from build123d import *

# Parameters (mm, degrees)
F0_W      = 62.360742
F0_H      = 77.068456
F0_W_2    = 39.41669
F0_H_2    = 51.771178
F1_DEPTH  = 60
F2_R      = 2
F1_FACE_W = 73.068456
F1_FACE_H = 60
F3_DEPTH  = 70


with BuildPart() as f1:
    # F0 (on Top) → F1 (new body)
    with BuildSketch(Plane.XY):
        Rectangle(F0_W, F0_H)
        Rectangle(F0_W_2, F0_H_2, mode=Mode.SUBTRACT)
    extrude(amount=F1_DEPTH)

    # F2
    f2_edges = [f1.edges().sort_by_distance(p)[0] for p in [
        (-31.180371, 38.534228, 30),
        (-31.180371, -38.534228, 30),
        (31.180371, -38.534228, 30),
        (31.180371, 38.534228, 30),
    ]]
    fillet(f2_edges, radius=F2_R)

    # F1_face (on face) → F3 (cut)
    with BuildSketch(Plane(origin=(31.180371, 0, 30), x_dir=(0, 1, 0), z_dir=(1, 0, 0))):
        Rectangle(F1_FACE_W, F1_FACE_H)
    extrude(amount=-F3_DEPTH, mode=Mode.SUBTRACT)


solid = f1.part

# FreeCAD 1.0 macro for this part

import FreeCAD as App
import Part
import Sketcher

V = App.Vector


def edges_at(feature, points):
    """Names of the edges that pass closest to the given points."""
    edges = feature.Shape.Edges
    near = lambda p: min(range(len(edges)), key=lambda i: edges[i].distToShape(Part.Vertex(*p))[0])
    return sorted({f"Edge{near(p) + 1}" for p in points})

doc = App.newDocument("Part")
body = doc.addObject("PartDesign::Body", "Body")
body.AllowCompound = True

# Sketch on XY plane
sketch1 = body.newObject("Sketcher::SketchObject", "Sketch")
sketch1.AttachmentSupport = (doc.getObject("XY_Plane"), [""])
sketch1.MapMode = "FlatFace"
sketch1.addGeometry([
    Part.LineSegment(V(-31, 39, 0), V(-31, -39, 0)),  # 0
    Part.LineSegment(V(-31, -39, 0), V(31, -39, 0)),  # 1
    Part.LineSegment(V(31, -39, 0), V(31, 39, 0)),  # 2
    Part.LineSegment(V(31, 39, 0), V(-31, 39, 0)),  # 3
    Part.LineSegment(V(20, -26, 0), V(-20, -26, 0)),  # 4
    Part.LineSegment(V(-20, -26, 0), V(-20, 26, 0)),  # 5
    Part.LineSegment(V(-20, 26, 0), V(20, 26, 0)),  # 6
    Part.LineSegment(V(20, 26, 0), V(20, -26, 0)),  # 7
], False)
sketch1.addConstraint([
    Sketcher.Constraint("Coincident", 0, 2, 1, 1),
    Sketcher.Constraint("Coincident", 1, 2, 2, 1),
    Sketcher.Constraint("Coincident", 2, 2, 3, 1),
    Sketcher.Constraint("Coincident", 3, 2, 0, 1),
    Sketcher.Constraint("Coincident", 4, 2, 5, 1),
    Sketcher.Constraint("Coincident", 5, 2, 6, 1),
    Sketcher.Constraint("Coincident", 6, 2, 7, 1),
    Sketcher.Constraint("Coincident", 7, 2, 4, 1),
    Sketcher.Constraint("Vertical", 0),
    Sketcher.Constraint("Horizontal", 1),
    Sketcher.Constraint("Vertical", 2),
    Sketcher.Constraint("Horizontal", 3),
    Sketcher.Constraint("Horizontal", 4),
    Sketcher.Constraint("Vertical", 5),
    Sketcher.Constraint("Horizontal", 6),
    Sketcher.Constraint("Vertical", 7),
    Sketcher.Constraint("Symmetric", 0, 2, 2, 2, -1, 1),
    Sketcher.Constraint("Symmetric", 4, 2, 6, 2, -1, 1),
    Sketcher.Constraint("DistanceX", 4, 2, 4, 1, 39.41669),
    Sketcher.Constraint("DistanceX", 1, 1, 1, 2, 62.360742),
    Sketcher.Constraint("DistanceY", 0, 2, 0, 1, 77.068456),
    Sketcher.Constraint("DistanceY", 5, 1, 5, 2, 51.771178),
])
pad1 = body.newObject("PartDesign::Pad", "Pad")
pad1.Profile = sketch1
pad1.Length = 60
doc.recompute()

fillet = body.newObject("PartDesign::Fillet", "Fillet")
fillet.Base = (pad1, edges_at(pad1, [
    (-31.18, 38.534, 30),
    (-31.18, -38.534, 30),
    (31.18, -38.534, 30),
    (31.18, 38.534, 30),
]))
fillet.Radius = 2

# Sketch on YZ plane
sketch2 = body.newObject("Sketcher::SketchObject", "Sketch001")
sketch2.AttachmentSupport = (doc.getObject("YZ_Plane"), [""])
sketch2.MapMode = "FlatFace"
sketch2.AttachmentOffset = App.Placement(V(0, 0, 31.180371), App.Rotation())
sketch2.addGeometry([
    Part.LineSegment(V(-37, 60, 0), V(-37, 0, 0)),
    Part.LineSegment(V(-37, 0, 0), V(37, 0, 0)),
    Part.LineSegment(V(37, 0, 0), V(37, 60, 0)),
    Part.LineSegment(V(37, 60, 0), V(-37, 60, 0)),
], False)
sketch2.addConstraint([
    Sketcher.Constraint("Coincident", 0, 2, 1, 1),
    Sketcher.Constraint("Coincident", 1, 2, 2, 1),
    Sketcher.Constraint("Coincident", 2, 2, 3, 1),
    Sketcher.Constraint("Coincident", 3, 2, 0, 1),
    Sketcher.Constraint("Vertical", 0),
    Sketcher.Constraint("Horizontal", 1),
    Sketcher.Constraint("Vertical", 2),
    Sketcher.Constraint("Horizontal", 3),
    Sketcher.Constraint("Symmetric", 0, 2, 1, 2, -1, 1),
    Sketcher.Constraint("DistanceY", 0, 2, 0, 1, 60.0),
    Sketcher.Constraint("DistanceX", 1, 1, 1, 2, 73.068456),
])
pocket1 = body.newObject("PartDesign::Pocket", "Pocket")
pocket1.Profile = sketch2
pocket1.Length = 70

doc.recompute()
